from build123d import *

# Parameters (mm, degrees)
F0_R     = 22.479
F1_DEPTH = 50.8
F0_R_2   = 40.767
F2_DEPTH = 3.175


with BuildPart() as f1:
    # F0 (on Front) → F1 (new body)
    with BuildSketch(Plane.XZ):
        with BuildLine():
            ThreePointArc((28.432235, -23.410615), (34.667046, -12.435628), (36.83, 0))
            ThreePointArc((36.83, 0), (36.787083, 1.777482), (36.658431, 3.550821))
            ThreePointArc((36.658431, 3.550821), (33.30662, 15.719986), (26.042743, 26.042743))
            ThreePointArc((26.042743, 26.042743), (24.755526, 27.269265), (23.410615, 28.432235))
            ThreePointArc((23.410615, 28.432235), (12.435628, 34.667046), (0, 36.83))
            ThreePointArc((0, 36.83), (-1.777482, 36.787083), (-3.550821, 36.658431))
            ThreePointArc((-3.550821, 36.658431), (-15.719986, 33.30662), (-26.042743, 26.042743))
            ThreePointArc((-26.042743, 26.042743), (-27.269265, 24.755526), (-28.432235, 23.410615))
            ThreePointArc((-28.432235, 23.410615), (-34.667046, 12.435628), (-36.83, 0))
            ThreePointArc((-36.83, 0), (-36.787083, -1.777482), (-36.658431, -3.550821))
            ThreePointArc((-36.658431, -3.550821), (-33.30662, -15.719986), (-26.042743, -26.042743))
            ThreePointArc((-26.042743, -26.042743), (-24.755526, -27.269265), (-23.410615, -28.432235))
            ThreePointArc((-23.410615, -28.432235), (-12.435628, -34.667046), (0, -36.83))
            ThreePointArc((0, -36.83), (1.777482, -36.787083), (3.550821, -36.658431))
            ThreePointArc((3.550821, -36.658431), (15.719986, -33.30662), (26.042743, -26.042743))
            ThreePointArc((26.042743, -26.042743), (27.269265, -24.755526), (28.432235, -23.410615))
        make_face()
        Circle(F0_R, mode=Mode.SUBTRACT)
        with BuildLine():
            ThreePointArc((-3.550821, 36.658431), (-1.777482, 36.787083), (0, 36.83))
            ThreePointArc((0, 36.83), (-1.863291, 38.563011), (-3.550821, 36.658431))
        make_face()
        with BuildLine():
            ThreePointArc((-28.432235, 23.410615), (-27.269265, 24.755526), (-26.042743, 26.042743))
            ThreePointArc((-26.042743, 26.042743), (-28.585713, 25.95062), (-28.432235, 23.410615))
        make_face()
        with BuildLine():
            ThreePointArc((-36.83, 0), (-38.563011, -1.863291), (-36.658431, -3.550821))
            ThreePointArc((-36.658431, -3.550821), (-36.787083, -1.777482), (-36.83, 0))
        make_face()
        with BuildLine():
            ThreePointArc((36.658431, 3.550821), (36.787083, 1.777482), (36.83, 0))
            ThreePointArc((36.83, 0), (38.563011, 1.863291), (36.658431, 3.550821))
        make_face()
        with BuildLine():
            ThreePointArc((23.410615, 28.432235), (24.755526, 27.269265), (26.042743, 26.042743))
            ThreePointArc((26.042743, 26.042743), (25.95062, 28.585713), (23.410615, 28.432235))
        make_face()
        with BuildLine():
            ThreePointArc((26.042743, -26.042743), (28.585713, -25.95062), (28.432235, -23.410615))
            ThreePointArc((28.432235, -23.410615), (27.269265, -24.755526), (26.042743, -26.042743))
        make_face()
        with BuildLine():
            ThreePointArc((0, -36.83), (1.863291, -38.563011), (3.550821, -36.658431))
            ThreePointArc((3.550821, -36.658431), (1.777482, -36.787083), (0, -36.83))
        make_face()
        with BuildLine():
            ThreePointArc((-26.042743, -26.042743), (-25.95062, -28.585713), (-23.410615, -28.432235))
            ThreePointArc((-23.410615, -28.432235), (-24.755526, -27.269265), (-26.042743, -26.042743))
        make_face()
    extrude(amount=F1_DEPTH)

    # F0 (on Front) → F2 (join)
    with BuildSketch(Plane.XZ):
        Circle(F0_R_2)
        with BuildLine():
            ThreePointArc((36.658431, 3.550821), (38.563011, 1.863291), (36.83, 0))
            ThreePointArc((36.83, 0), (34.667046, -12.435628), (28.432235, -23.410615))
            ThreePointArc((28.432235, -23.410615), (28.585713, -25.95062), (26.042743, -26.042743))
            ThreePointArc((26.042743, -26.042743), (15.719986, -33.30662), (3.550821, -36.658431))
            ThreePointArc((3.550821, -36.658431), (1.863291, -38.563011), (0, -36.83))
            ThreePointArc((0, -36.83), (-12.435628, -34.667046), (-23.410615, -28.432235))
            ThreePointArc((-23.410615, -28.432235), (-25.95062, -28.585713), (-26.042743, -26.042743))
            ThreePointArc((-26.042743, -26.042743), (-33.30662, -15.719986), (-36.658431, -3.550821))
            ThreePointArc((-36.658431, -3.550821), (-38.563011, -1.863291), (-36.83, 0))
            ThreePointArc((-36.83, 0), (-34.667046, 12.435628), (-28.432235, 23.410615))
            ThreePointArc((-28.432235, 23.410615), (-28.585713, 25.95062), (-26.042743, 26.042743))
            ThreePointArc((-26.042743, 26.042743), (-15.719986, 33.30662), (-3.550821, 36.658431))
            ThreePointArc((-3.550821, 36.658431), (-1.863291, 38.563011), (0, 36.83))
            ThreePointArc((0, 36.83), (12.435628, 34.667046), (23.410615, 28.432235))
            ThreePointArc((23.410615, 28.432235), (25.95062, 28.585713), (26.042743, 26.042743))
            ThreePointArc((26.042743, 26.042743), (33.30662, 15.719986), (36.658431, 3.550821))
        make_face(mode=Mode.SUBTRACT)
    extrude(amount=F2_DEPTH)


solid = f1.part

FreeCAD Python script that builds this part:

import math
import FreeCAD as App
import Part
import Sketcher
from FreeCAD import Vector
Q = App.Units.Quantity

doc = App.newDocument("Part")
body = doc.addObject("PartDesign::Body", "Body")

sketch1 = body.newObject("Sketcher::SketchObject", "Sketch")
sketch1.AttachmentSupport = (doc.getObject("XZ_Plane"), [""])
sketch1.MapMode = "FlatFace"
sketch1.addGeometry([
    Part.ArcOfCircle(Part.Circle(Vector(0.000007, -0.000002, 0), Vector(0, 0, 1), 36.829993), math.radians(-39.46746), math.radians(0.000003)),
    Part.ArcOfCircle(Part.Circle(Vector(36.787083, 1.777482, 0), Vector(0, 0, 1), 1.778), math.radians(-88.616873), math.radians(94.149419)),
    Part.ArcOfCircle(Part.Circle(Vector(-0.000003, -0.000001, 0), Vector(0, 0, 1), 36.830003), math.radians(5.532544), math.radians(44.999997)),
    Part.ArcOfCircle(Part.Circle(Vector(24.755526, 27.269265, 0), Vector(0, 0, 1), 1.778), math.radians(-43.616851), math.radians(139.149414)),
    Part.ArcOfCircle(Part.Circle(Vector(0.000002, 0.000007, 0), Vector(0, 0, 1), 36.829993), math.radians(50.53254), math.radians(90.000003)),
    Part.ArcOfCircle(Part.Circle(Vector(-1.777482, 36.787083, 0), Vector(0, 0, 1), 1.778), math.radians(1.383127), math.radians(184.149419)),
    Part.ArcOfCircle(Part.Circle(Vector(0.000001, -0.000003, 0), Vector(0, 0, 1), 36.830003), math.radians(95.532544), math.radians(134.999997)),
    Part.ArcOfCircle(Part.Circle(Vector(-27.269265, 24.755526, 0), Vector(0, 0, 1), 1.778), math.radians(46.383149), math.radians(229.149414)),
    Part.ArcOfCircle(Part.Circle(Vector(-0.000007, 0.000002, 0), Vector(0, 0, 1), 36.829993), math.radians(140.53254), math.radians(180.000003)),
    Part.ArcOfCircle(Part.Circle(Vector(-36.787083, -1.777482, 0), Vector(0, 0, 1), 1.778), math.radians(91.383127), math.radians(274.149419)),
    Part.ArcOfCircle(Part.Circle(Vector(0.000003, 0.000001, 0), Vector(0, 0, 1), 36.830003), math.radians(-174.467456), math.radians(-135.000003)),
    Part.ArcOfCircle(Part.Circle(Vector(-24.755526, -27.269265, 0), Vector(0, 0, 1), 1.778), math.radians(136.383149), math.radians(319.149414)),
    Part.ArcOfCircle(Part.Circle(Vector(-0.000002, -0.000007, 0), Vector(0, 0, 1), 36.829993), math.radians(-129.46746), math.radians(-89.999997)),
    Part.ArcOfCircle(Part.Circle(Vector(1.777482, -36.787083, 0), Vector(0, 0, 1), 1.778), math.radians(-178.616873), math.radians(4.149419)),
    Part.ArcOfCircle(Part.Circle(Vector(-0.000001, 0.000003, 0), Vector(0, 0, 1), 36.830003), math.radians(-84.467456), math.radians(-45.000003)),
    Part.ArcOfCircle(Part.Circle(Vector(27.269265, -24.755526, 0), Vector(0, 0, 1), 1.778), math.radians(-133.616851), math.radians(49.149414)),
    Part.Circle(Vector(0, 0, 0), Vector(0, 0, 1), 22.479),
], False)
sketch1.addConstraint([
    Sketcher.Constraint("Coincident", 0, 2, 1, 1),
    Sketcher.Constraint("Coincident", 1, 2, 2, 1),
    Sketcher.Constraint("Coincident", 2, 2, 3, 1),
    Sketcher.Constraint("Coincident", 3, 2, 4, 1),
    Sketcher.Constraint("Coincident", 4, 2, 5, 1),
    Sketcher.Constraint("Coincident", 5, 2, 6, 1),
    Sketcher.Constraint("Coincident", 6, 2, 7, 1),
    Sketcher.Constraint("Coincident", 7, 2, 8, 1),
    Sketcher.Constraint("Coincident", 8, 2, 9, 1),
    Sketcher.Constraint("Coincident", 9, 2, 10, 1),
    Sketcher.Constraint("Coincident", 10, 2, 11, 1),
    Sketcher.Constraint("Coincident", 11, 2, 12, 1),
    Sketcher.Constraint("Coincident", 12, 2, 13, 1),
    Sketcher.Constraint("Coincident", 13, 2, 14, 1),
    Sketcher.Constraint("Coincident", 14, 2, 15, 1),
    Sketcher.Constraint("Coincident", 15, 2, 0, 1),
    Sketcher.Constraint("Coincident", 0, 3, -1, 1),
    Sketcher.Constraint("Coincident", 2, 3, -1, 1),
    Sketcher.Constraint("Coincident", 4, 3, -1, 1),
    Sketcher.Constraint("Coincident", 6, 3, -1, 1),
    Sketcher.Constraint("Coincident", 8, 3, -1, 1),
    Sketcher.Constraint("Coincident", 10, 3, -1, 1),
    Sketcher.Constraint("Coincident", 12, 3, -1, 1),
    Sketcher.Constraint("Coincident", 14, 3, -1, 1),
    Sketcher.Constraint("Coincident", 16, 3, -1, 1),
    Sketcher.Constraint("Equal", 1, 3),
    Sketcher.Constraint("Equal", 0, 4),
    Sketcher.Constraint("Equal", 3, 5),
    Sketcher.Constraint("Equal", 2, 6),
    Sketcher.Constraint("Equal", 5, 7),
    Sketcher.Constraint("Equal", 4, 8),
    Sketcher.Constraint("Equal", 7, 9),
    Sketcher.Constraint("Equal", 6, 10),
    Sketcher.Constraint("Equal", 9, 11),
    Sketcher.Constraint("Equal", 8, 12),
    Sketcher.Constraint("Equal", 11, 13),
    Sketcher.Constraint("Equal", 10, 14),
    Sketcher.Constraint("Equal", 13, 15),
    Sketcher.Constraint("Symmetric", 1, 3, 9, 3, -1, 1),
    Sketcher.Constraint("Symmetric", 3, 3, 11, 3, -1, 1),
    Sketcher.Constraint("Symmetric", 5, 3, 13, 3, -1, 1),
    Sketcher.Constraint("Symmetric", 7, 3, 15, 3, -1, 1),
    Sketcher.Constraint("PointOnObject", 0, 2, -1),
    Sketcher.Constraint("PointOnObject", 4, 2, -2),
    Sketcher.Constraint("Horizontal", 2, 2, 6, 2),
    Sketcher.Constraint("Diameter", 16, Q("1.77 in")),
    Sketcher.Constraint("Radius", 1, Q("0.07 in")),
    Sketcher.Constraint("Radius", 2, Q("1.4500001 in")),
    Sketcher.Constraint("DistanceX", -1, 1, 0, 2, Q("1.45 in")),
    Sketcher.Constraint("DistanceY", 1, 3, 5, 3, 35.009601),
    Sketcher.Constraint("DistanceY", -1, 1, 1, 3, 1.777482),
    Sketcher.Constraint("DistanceX", 0, 3, 3, 3, 24.755519),
    Sketcher.Constraint("DistanceY", 4, 3, 3, 3, 27.269258),
    Sketcher.Constraint("DistanceY", 4, 3, 7, 3, 24.755519),
])
pad1 = body.newObject("PartDesign::Pad", "Pad")
pad1.Profile = sketch1
pad1.Length = Q("2 in")

sketch2 = body.newObject("Sketcher::SketchObject", "Sketch001")
sketch2.AttachmentSupport = (doc.getObject("XZ_Plane"), [""])
sketch2.MapMode = "FlatFace"
sketch2.addGeometry([
    Part.Circle(Vector(0, 0, 0), Vector(0, 0, 1), 40.767),
    Part.ArcOfCircle(Part.Circle(Vector(-0.000003, -0.000001, 0), Vector(0, 0, 1), 36.830003), math.radians(5.532544), math.radians(44.999997)),
    Part.ArcOfCircle(Part.Circle(Vector(36.787083, 1.777482, 0), Vector(0, 0, 1), 1.778), math.radians(-88.616873), math.radians(94.149419)),
    Part.ArcOfCircle(Part.Circle(Vector(0.000007, -0.000002, 0), Vector(0, 0, 1), 36.829993), math.radians(-39.46746), math.radians(0.000003)),
    Part.ArcOfCircle(Part.Circle(Vector(27.269265, -24.755526, 0), Vector(0, 0, 1), 1.778), math.radians(-133.616851), math.radians(49.149414)),
    Part.ArcOfCircle(Part.Circle(Vector(-0.000001, 0.000003, 0), Vector(0, 0, 1), 36.830003), math.radians(-84.467456), math.radians(-45.000003)),
    Part.ArcOfCircle(Part.Circle(Vector(1.777482, -36.787083, 0), Vector(0, 0, 1), 1.778), math.radians(-178.616873), math.radians(4.149419)),
    Part.ArcOfCircle(Part.Circle(Vector(-0.000002, -0.000007, 0), Vector(0, 0, 1), 36.829993), math.radians(-129.46746), math.radians(-89.999997)),
    Part.ArcOfCircle(Part.Circle(Vector(-24.755526, -27.269265, 0), Vector(0, 0, 1), 1.778), math.radians(136.383149), math.radians(319.149414)),
    Part.ArcOfCircle(Part.Circle(Vector(0.000003, 0.000001, 0), Vector(0, 0, 1), 36.830003), math.radians(-174.467456), math.radians(-135.000003)),
    Part.ArcOfCircle(Part.Circle(Vector(-36.787083, -1.777482, 0), Vector(0, 0, 1), 1.778), math.radians(91.383127), math.radians(274.149419)),
    Part.ArcOfCircle(Part.Circle(Vector(-0.000007, 0.000002, 0), Vector(0, 0, 1), 36.829993), math.radians(140.53254), math.radians(180.000003)),
    Part.ArcOfCircle(Part.Circle(Vector(-27.269265, 24.755526, 0), Vector(0, 0, 1), 1.778), math.radians(46.383149), math.radians(229.149414)),
    Part.ArcOfCircle(Part.Circle(Vector(0.000001, -0.000003, 0), Vector(0, 0, 1), 36.830003), math.radians(95.532544), math.radians(134.999997)),
    Part.ArcOfCircle(Part.Circle(Vector(-1.777482, 36.787083, 0), Vector(0, 0, 1), 1.778), math.radians(1.383127), math.radians(184.149419)),
    Part.ArcOfCircle(Part.Circle(Vector(0.000002, 0.000007, 0), Vector(0, 0, 1), 36.829993), math.radians(50.53254), math.radians(90.000003)),
    Part.ArcOfCircle(Part.Circle(Vector(24.755526, 27.269265, 0), Vector(0, 0, 1), 1.778), math.radians(-43.616851), math.radians(139.149414)),
], False)
sketch2.addConstraint([
    Sketcher.Constraint("Coincident", 1, 1, 2, 2),
    Sketcher.Constraint("Coincident", 2, 1, 3, 2),
    Sketcher.Constraint("Coincident", 3, 1, 4, 2),
    Sketcher.Constraint("Coincident", 4, 1, 5, 2),
    Sketcher.Constraint("Coincident", 5, 1, 6, 2),
    Sketcher.Constraint("Coincident", 6, 1, 7, 2),
    Sketcher.Constraint("Coincident", 7, 1, 8, 2),
    Sketcher.Constraint("Coincident", 8, 1, 9, 2),
    Sketcher.Constraint("Coincident", 9, 1, 10, 2),
    Sketcher.Constraint("Coincident", 10, 1, 11, 2),
    Sketcher.Constraint("Coincident", 11, 1, 12, 2),
    Sketcher.Constraint("Coincident", 12, 1, 13, 2),
    Sketcher.Constraint("Coincident", 13, 1, 14, 2),
    Sketcher.Constraint("Coincident", 14, 1, 15, 2),
    Sketcher.Constraint("Coincident", 15, 1, 16, 2),
    Sketcher.Constraint("Coincident", 16, 1, 1, 2),
    Sketcher.Constraint("Coincident", 0, 3, -1, 1),
    Sketcher.Constraint("Coincident", 1, 3, -1, 1),
    Sketcher.Constraint("Coincident", 3, 3, -1, 1),
    Sketcher.Constraint("Coincident", 5, 3, -1, 1),
    Sketcher.Constraint("Coincident", 7, 3, -1, 1),
    Sketcher.Constraint("Coincident", 9, 3, -1, 1),
    Sketcher.Constraint("Coincident", 11, 3, -1, 1),
    Sketcher.Constraint("Coincident", 13, 3, -1, 1),
    Sketcher.Constraint("Coincident", 15, 3, -1, 1),
    Sketcher.Constraint("Equal", 2, 4),
    Sketcher.Constraint("Equal", 1, 5),
    Sketcher.Constraint("Equal", 4, 6),
    Sketcher.Constraint("Equal", 3, 7),
    Sketcher.Constraint("Equal", 6, 8),
    Sketcher.Constraint("Equal", 5, 9),
    Sketcher.Constraint("Equal", 8, 10),
    Sketcher.Constraint("Equal", 7, 11),
    Sketcher.Constraint("Equal", 10, 12),
    Sketcher.Constraint("Equal", 9, 13),
    Sketcher.Constraint("Equal", 12, 14),
    Sketcher.Constraint("Equal", 11, 15),
    Sketcher.Constraint("Equal", 14, 16),
    Sketcher.Constraint("Symmetric", 2, 3, 10, 3, -1, 1),
    Sketcher.Constraint("Symmetric", 4, 3, 12, 3, -1, 1),
    Sketcher.Constraint("Symmetric", 6, 3, 14, 3, -1, 1),
    Sketcher.Constraint("Symmetric", 8, 3, 16, 3, -1, 1),
    Sketcher.Constraint("PointOnObject", 2, 1, -1),
    Sketcher.Constraint("PointOnObject", 6, 1, -2),
    Sketcher.Constraint("Horizontal", 4, 1, 8, 1),
    Sketcher.Constraint("Diameter", 0, Q("3.21 in")),
    Sketcher.Constraint("Radius", 1, Q("1.4500001 in")),
    Sketcher.Constraint("Radius", 2, Q("0.07 in")),
    Sketcher.Constraint("DistanceX", -1, 1, 2, 1, Q("1.45 in")),
    Sketcher.Constraint("DistanceY", -1, 1, 2, 3, 1.777482),
    Sketcher.Constraint("DistanceX", -1, 1, 6, 3, 1.777482),
    Sketcher.Constraint("DistanceX", 3, 3, 4, 3, 27.269258),
    Sketcher.Constraint("DistanceY", 4, 3, 5, 3, 24.755529),
    Sketcher.Constraint("DistanceY", 8, 3, 7, 3, 27.269258),
])
pad2 = body.newObject("PartDesign::Pad", "Pad001")
pad2.Profile = sketch2
pad2.Length = Q("0.125 in")

doc.recompute()
